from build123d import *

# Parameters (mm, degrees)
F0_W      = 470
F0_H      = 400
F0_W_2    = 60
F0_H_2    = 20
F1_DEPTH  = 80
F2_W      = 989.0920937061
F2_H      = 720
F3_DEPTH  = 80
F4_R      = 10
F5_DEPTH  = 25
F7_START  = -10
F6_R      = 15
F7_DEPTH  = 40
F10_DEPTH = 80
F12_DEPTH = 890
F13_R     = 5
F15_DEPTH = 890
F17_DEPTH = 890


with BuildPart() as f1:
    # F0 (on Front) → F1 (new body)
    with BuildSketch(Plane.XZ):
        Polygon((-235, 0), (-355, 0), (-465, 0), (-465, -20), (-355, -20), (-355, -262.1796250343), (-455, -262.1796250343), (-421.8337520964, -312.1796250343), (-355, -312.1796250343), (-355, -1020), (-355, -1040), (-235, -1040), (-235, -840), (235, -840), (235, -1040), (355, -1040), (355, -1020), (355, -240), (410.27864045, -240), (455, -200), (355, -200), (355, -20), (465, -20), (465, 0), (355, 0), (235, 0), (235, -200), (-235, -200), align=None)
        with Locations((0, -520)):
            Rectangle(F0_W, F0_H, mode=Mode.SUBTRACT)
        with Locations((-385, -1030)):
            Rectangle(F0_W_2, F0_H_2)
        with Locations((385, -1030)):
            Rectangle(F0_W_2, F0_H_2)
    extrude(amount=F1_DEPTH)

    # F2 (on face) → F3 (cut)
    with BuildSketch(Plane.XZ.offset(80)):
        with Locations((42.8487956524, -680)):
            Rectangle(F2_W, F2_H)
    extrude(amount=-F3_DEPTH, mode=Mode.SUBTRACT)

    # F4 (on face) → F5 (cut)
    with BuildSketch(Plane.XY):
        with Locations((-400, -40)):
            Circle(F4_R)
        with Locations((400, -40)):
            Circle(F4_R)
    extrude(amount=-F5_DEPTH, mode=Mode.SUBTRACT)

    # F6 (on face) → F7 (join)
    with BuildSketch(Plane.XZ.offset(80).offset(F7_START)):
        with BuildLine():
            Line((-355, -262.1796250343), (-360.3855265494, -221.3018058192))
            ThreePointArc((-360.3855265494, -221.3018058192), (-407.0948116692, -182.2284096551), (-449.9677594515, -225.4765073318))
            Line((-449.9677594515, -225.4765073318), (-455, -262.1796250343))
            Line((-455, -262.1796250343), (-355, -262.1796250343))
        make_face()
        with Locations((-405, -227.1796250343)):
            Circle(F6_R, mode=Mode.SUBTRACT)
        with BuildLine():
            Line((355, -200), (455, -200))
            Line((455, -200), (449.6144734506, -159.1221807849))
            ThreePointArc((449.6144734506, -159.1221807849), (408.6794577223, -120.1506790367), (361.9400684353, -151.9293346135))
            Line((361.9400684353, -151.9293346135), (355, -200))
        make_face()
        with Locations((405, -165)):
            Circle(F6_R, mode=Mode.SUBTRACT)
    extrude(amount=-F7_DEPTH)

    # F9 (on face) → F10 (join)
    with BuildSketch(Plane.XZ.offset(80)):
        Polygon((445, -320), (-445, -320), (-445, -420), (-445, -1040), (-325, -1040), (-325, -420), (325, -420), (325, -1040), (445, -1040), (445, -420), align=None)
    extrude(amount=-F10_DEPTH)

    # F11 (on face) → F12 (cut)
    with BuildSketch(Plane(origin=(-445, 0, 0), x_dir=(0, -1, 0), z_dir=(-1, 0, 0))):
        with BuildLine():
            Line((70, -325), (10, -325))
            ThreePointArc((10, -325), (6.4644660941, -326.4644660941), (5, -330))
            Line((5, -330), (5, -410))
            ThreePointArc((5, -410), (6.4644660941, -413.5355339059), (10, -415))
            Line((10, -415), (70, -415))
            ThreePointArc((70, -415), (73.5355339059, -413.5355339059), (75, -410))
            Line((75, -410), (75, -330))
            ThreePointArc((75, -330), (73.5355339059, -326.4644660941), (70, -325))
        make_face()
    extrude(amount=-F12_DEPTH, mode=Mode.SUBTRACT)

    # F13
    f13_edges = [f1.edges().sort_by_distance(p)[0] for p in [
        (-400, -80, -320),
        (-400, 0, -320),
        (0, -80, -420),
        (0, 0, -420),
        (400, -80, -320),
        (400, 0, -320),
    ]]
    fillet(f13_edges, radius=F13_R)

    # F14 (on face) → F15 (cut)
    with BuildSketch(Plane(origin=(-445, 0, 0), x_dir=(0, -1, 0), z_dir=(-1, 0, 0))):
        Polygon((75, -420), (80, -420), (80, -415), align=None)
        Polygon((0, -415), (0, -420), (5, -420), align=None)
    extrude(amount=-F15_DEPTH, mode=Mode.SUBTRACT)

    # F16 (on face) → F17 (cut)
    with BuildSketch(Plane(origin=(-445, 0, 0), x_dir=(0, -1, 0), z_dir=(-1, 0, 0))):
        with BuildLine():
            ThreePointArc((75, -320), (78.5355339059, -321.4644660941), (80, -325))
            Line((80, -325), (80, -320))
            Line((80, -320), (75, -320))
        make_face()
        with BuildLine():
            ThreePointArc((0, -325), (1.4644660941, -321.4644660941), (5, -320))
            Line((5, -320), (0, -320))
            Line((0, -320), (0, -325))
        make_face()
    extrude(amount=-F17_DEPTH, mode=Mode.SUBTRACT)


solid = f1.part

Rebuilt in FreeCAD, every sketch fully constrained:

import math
import FreeCAD as App
import Part
import Sketcher

V = App.Vector
Q = App.Units.Quantity


def edges_at(feature, points):
    """Names of the edges that pass closest to the given points."""
    edges = feature.Shape.Edges
    near = lambda p: min(range(len(edges)), key=lambda i: edges[i].distToShape(Part.Vertex(*p))[0])
    return sorted({f"Edge{near(p) + 1}" for p in points})


def add_polygon(sketch, points):
    """Adds a closed chain of lines whose ends are joined by coincident constraints."""
    first, n = sketch.GeometryCount, len(points)
    for a, b in zip(points, points[1:] + points[:1]):
        sketch.addGeometry(Part.LineSegment(App.Vector(*a, 0), App.Vector(*b, 0)), False)
    for i in range(n):
        sketch.addConstraint(Sketcher.Constraint("Coincident", first + i, 2, first + (i + 1) % n, 1))

doc = App.newDocument("Part")
body = doc.addObject("PartDesign::Body", "Body")

sketch1 = body.newObject("Sketcher::SketchObject", "Sketch")
sketch1.AttachmentSupport = (doc.getObject("XZ_Plane"), [""])
sketch1.MapMode = "FlatFace"
add_polygon(sketch1, [(-235, 0), (-465, 0), (-465, -20), (-355, -20), (-355, -262.179625), (-455, -262.179625), (-421.833752, -312.179625), (-355, -312.179625), (-355, -1020), (-415, -1020), (-415, -1040), (-235, -1040), (-235, -840), (235, -840), (235, -1040), (415, -1040), (415, -1020), (355, -1020), (355, -240), (410.27864, -240), (455, -200), (355, -200), (355, -20), (465, -20), (465, 0), (235, 0), (235, -200), (-235, -200)])
add_polygon(sketch1, [(235, -720), (-235, -720), (-235, -320), (235, -320)])
sketch1.addConstraint(Sketcher.Constraint("Horizontal", 0))
sketch1.addConstraint(Sketcher.Constraint("Vertical", 1))
sketch1.addConstraint(Sketcher.Constraint("Horizontal", 2))
sketch1.addConstraint(Sketcher.Constraint("Vertical", 3))
sketch1.addConstraint(Sketcher.Constraint("Horizontal", 4))
sketch1.addConstraint(Sketcher.Constraint("Horizontal", 6))
sketch1.addConstraint(Sketcher.Constraint("Vertical", 7))
sketch1.addConstraint(Sketcher.Constraint("Horizontal", 8))
sketch1.addConstraint(Sketcher.Constraint("Vertical", 9))
sketch1.addConstraint(Sketcher.Constraint("Horizontal", 10))
sketch1.addConstraint(Sketcher.Constraint("Vertical", 11))
sketch1.addConstraint(Sketcher.Constraint("Horizontal", 12))
sketch1.addConstraint(Sketcher.Constraint("Vertical", 13))
sketch1.addConstraint(Sketcher.Constraint("Horizontal", 14))
sketch1.addConstraint(Sketcher.Constraint("Vertical", 15))
sketch1.addConstraint(Sketcher.Constraint("Horizontal", 16))
sketch1.addConstraint(Sketcher.Constraint("Vertical", 17))
sketch1.addConstraint(Sketcher.Constraint("Horizontal", 18))
sketch1.addConstraint(Sketcher.Constraint("Horizontal", 20))
sketch1.addConstraint(Sketcher.Constraint("Vertical", 21))
sketch1.addConstraint(Sketcher.Constraint("Horizontal", 22))
sketch1.addConstraint(Sketcher.Constraint("Vertical", 23))
sketch1.addConstraint(Sketcher.Constraint("Horizontal", 24))
sketch1.addConstraint(Sketcher.Constraint("Vertical", 25))
sketch1.addConstraint(Sketcher.Constraint("Horizontal", 26))
sketch1.addConstraint(Sketcher.Constraint("Vertical", 27))
sketch1.addConstraint(Sketcher.Constraint("Horizontal", 28))
sketch1.addConstraint(Sketcher.Constraint("Vertical", 29))
sketch1.addConstraint(Sketcher.Constraint("Horizontal", 30))
sketch1.addConstraint(Sketcher.Constraint("Vertical", 31))
sketch1.addConstraint(Sketcher.Constraint("Symmetric", 0, 2, 23, 2, -1, 1))
sketch1.addConstraint(Sketcher.Constraint("Symmetric", 10, 2, 13, 2, -2))
sketch1.addConstraint(Sketcher.Constraint("Symmetric", 8, 2, 15, 2, -2))
sketch1.addConstraint(Sketcher.Constraint("Symmetric", 2, 2, 21, 2, -2))
sketch1.addConstraint(Sketcher.Constraint("Symmetric", 24, 2, 27, 2, -2))
sketch1.addConstraint(Sketcher.Constraint("Horizontal", 20, 2, 25, 2))
sketch1.addConstraint(Sketcher.Constraint("Vertical", 3, 2, 6, 2))
sketch1.addConstraint(Sketcher.Constraint("Vertical", 17, 2, 20, 2))
sketch1.addConstraint(Sketcher.Constraint("Vertical", 13, 2, 24, 2))
sketch1.addConstraint(Sketcher.Constraint("Vertical", 27, 2, 28, 2))
sketch1.addConstraint(Sketcher.Constraint("Vertical", 25, 2, 30, 2))
sketch1.addConstraint(Sketcher.Constraint("Equal", 4, 20))
sketch1.addConstraint(Sketcher.Constraint("Equal", 1, 9))
sketch1.addConstraint(Sketcher.Constraint("Equal", 14, 21))
sketch1.addConstraint(Sketcher.Constraint("Equal", 13, 25))
sketch1.addConstraint(Sketcher.Constraint("Equal", 5, 19))
sketch1.addConstraint(Sketcher.Constraint("DistanceX", 0, 2, 0, 1, Q("230 mm")))
sketch1.addConstraint(Sketcher.Constraint("DistanceX", 2, 1, 2, 2, Q("110 mm")))
sketch1.addConstraint(Sketcher.Constraint("DistanceX", 4, 2, 4, 1, Q("100 mm")))
sketch1.addConstraint(Sketcher.Constraint("DistanceX", 8, 2, 8, 1, Q("60 mm")))
sketch1.addConstraint(Sketcher.Constraint("DistanceX", 12, 1, 12, 2, Q("470 mm")))
sketch1.addConstraint(Sketcher.Constraint("DistanceY", 1, 2, 1, 1, Q("20 mm")))
sketch1.addConstraint(Sketcher.Constraint("DistanceY", 17, 1, 17, 2, Q("780 mm")))
sketch1.addConstraint(Sketcher.Constraint("DistanceY", 29, 1, 29, 2, Q("400 mm")))
sketch1.addConstraint(Sketcher.Constraint("Distance", 5, Q("60 mm")))
sketch1.addConstraint(Sketcher.Constraint("DistanceY", 7, 2, -1, 1, Q("1020 mm")))
sketch1.addConstraint(Sketcher.Constraint("DistanceY", 28, 2, -1, 1, Q("720 mm")))
sketch1.addConstraint(Sketcher.Constraint("DistanceY", 5, 2, 4, 2, Q("50 mm")))
sketch1.addConstraint(Sketcher.Constraint("DistanceY", 3, 2, 3, 1, Q("242.179625 mm")))
pad1 = body.newObject("PartDesign::Pad", "Pad")
pad1.Profile = sketch1
pad1.Length = 80

sketch2 = body.newObject("Sketcher::SketchObject", "Sketch001")
sketch2.AttachmentSupport = (doc.getObject("XZ_Plane"), [""])
sketch2.MapMode = "FlatFace"
sketch2.AttachmentOffset = App.Placement(V(0, 0, 80), App.Rotation())
add_polygon(sketch2, [(-451.697251, -320), (-451.697251, -1040), (537.394843, -1040), (537.394843, -320)])
sketch2.addConstraint(Sketcher.Constraint("Vertical", 0))
sketch2.addConstraint(Sketcher.Constraint("Horizontal", 1))
sketch2.addConstraint(Sketcher.Constraint("Vertical", 2))
sketch2.addConstraint(Sketcher.Constraint("Horizontal", 3))
sketch2.addConstraint(Sketcher.Constraint("DistanceY", 0, 2, 0, 1, Q("720 mm")))
sketch2.addConstraint(Sketcher.Constraint("DistanceY", 0, 2, -1, 1, Q("1040 mm")))
sketch2.addConstraint(Sketcher.Constraint("DistanceX", 1, 1, 1, 2, Q("989.092094 mm")))
sketch2.addConstraint(Sketcher.Constraint("DistanceX", 0, 2, -1, 1, Q("451.697251 mm")))
pocket1 = body.newObject("PartDesign::Pocket", "Pocket")
pocket1.Profile = sketch2
pocket1.Length = 80

sketch3 = body.newObject("Sketcher::SketchObject", "Sketch002")
sketch3.AttachmentSupport = (doc.getObject("XY_Plane"), [""])
sketch3.MapMode = "FlatFace"
sketch3.addGeometry(Part.Circle(V(-400, -40, 0), V(0, 0, 1), 10), False)
sketch3.addGeometry(Part.Circle(V(400, -40, 0), V(0, 0, 1), 10), False)
sketch3.addConstraint(Sketcher.Constraint("Equal", 0, 1))
sketch3.addConstraint(Sketcher.Constraint("Symmetric", 0, 3, 1, 3, -2))
sketch3.addConstraint(Sketcher.Constraint("Diameter", 0, Q("20 mm")))
sketch3.addConstraint(Sketcher.Constraint("DistanceX", 0, 3, -1, 1, Q("400 mm")))
sketch3.addConstraint(Sketcher.Constraint("DistanceY", 0, 3, -1, 1, Q("40 mm")))
pocket2 = body.newObject("PartDesign::Pocket", "Pocket001")
pocket2.Profile = sketch3
pocket2.Length = 25

sketch4 = body.newObject("Sketcher::SketchObject", "Sketch003")
sketch4.AttachmentSupport = (doc.getObject("XZ_Plane"), [""])
sketch4.MapMode = "FlatFace"
sketch4.AttachmentOffset = App.Placement(V(0, 0, 70), App.Rotation())
sketch4.addGeometry(Part.LineSegment(V(-355, -262.179625, 0), V(-360.385527, -221.301806, 0)), False)
sketch4.addGeometry(Part.ArcOfCircle(Part.Circle(V(-405, -227.179625, 0), V(0, 0, 1), 45), math.radians(7.505317), math.radians(177.831005)), False)
sketch4.addGeometry(Part.LineSegment(V(-449.967759, -225.476507, 0), V(-455, -262.179625, 0)), False)
sketch4.addGeometry(Part.LineSegment(V(-455, -262.179625, 0), V(-355, -262.179625, 0)), False)
sketch4.addGeometry(Part.Circle(V(-405, -227.179625, 0), V(0, 0, 1), 15), False)
sketch4.addGeometry(Part.LineSegment(V(355, -200, 0), V(455, -200, 0)), False)
sketch4.addGeometry(Part.LineSegment(V(455, -200, 0), V(449.614473, -159.122181, 0)), False)
sketch4.addGeometry(Part.ArcOfCircle(Part.Circle(V(405, -165, 0), V(0, 0, 1), 45), math.radians(7.505317), math.radians(163.114549)), False)
sketch4.addGeometry(Part.LineSegment(V(361.940068, -151.929335, 0), V(355, -200, 0)), False)
sketch4.addGeometry(Part.Circle(V(405, -165, 0), V(0, 0, 1), 15), False)
sketch4.addConstraint(Sketcher.Constraint("Tangent", 0, 2, 1, 1))
sketch4.addConstraint(Sketcher.Constraint("Coincident", 1, 2, 2, 1))
sketch4.addConstraint(Sketcher.Constraint("Coincident", 2, 2, 3, 1))
sketch4.addConstraint(Sketcher.Constraint("Coincident", 3, 2, 0, 1))
sketch4.addConstraint(Sketcher.Constraint("Coincident", 5, 2, 6, 1))
sketch4.addConstraint(Sketcher.Constraint("Tangent", 6, 2, 7, 1))
sketch4.addConstraint(Sketcher.Constraint("Coincident", 7, 2, 8, 1))
sketch4.addConstraint(Sketcher.Constraint("Coincident", 8, 2, 5, 1))
sketch4.addConstraint(Sketcher.Constraint("Horizontal", 3))
sketch4.addConstraint(Sketcher.Constraint("Horizontal", 5))
sketch4.addConstraint(Sketcher.Constraint("Coincident", 4, 3, 1, 3))
sketch4.addConstraint(Sketcher.Constraint("Coincident", 9, 3, 7, 3))
sketch4.addConstraint(Sketcher.Constraint("Equal", 1, 7))
sketch4.addConstraint(Sketcher.Constraint("Equal", 4, 9))
sketch4.addConstraint(Sketcher.Constraint("Parallel", 0, 6))
sketch4.addConstraint(Sketcher.Constraint("Equal", 3, 5))
sketch4.addConstraint(Sketcher.Constraint("Equal", 0, 6))
sketch4.addConstraint(Sketcher.Constraint("Diameter", 4, Q("30 mm")))
sketch4.addConstraint(Sketcher.Constraint("Radius", 1, Q("45 mm")))
sketch4.addConstraint(Sketcher.Constraint("DistanceX", 3, 1, 3, 2, Q("100 mm")))
sketch4.addConstraint(Sketcher.Constraint("DistanceX", 1, 3, -1, 1, Q("405 mm")))
sketch4.addConstraint(Sketcher.Constraint("DistanceX", -1, 1, 7, 3, Q("405 mm")))
sketch4.addConstraint(Sketcher.Constraint("DistanceY", 7, 3, -1, 1, Q("165 mm")))
sketch4.addConstraint(Sketcher.Constraint("DistanceX", 2, 2, -1, 1, Q("455 mm")))
sketch4.addConstraint(Sketcher.Constraint("DistanceY", 5, 2, -1, 1, Q("200 mm")))
sketch4.addConstraint(Sketcher.Constraint("DistanceY", 1, 2, 0, 2, Q("4.174702 mm")))
sketch4.addConstraint(Sketcher.Constraint("Distance", 8, Q("48.569058 mm")))
sketch4.addConstraint(Sketcher.Constraint("DistanceY", 3, 2, 7, 2, Q("110.25029 mm")))
pad2 = body.newObject("PartDesign::Pad", "Pad001")
pad2.Profile = sketch4
pad2.Length = 40
pad2.Reversed = True

sketch5 = body.newObject("Sketcher::SketchObject", "Sketch004")
sketch5.AttachmentSupport = (doc.getObject("XZ_Plane"), [""])
sketch5.MapMode = "FlatFace"
sketch5.AttachmentOffset = App.Placement(V(0, 0, 80), App.Rotation())
add_polygon(sketch5, [(445, -320), (-445, -320), (-445, -1040), (-325, -1040), (-325, -420), (325, -420), (325, -1040), (445, -1040)])
sketch5.addConstraint(Sketcher.Constraint("Horizontal", 0))
sketch5.addConstraint(Sketcher.Constraint("Vertical", 1))
sketch5.addConstraint(Sketcher.Constraint("Horizontal", 2))
sketch5.addConstraint(Sketcher.Constraint("Vertical", 3))
sketch5.addConstraint(Sketcher.Constraint("Horizontal", 4))
sketch5.addConstraint(Sketcher.Constraint("Vertical", 5))
sketch5.addConstraint(Sketcher.Constraint("Horizontal", 6))
sketch5.addConstraint(Sketcher.Constraint("Vertical", 7))
sketch5.addConstraint(Sketcher.Constraint("Symmetric", 2, 2, 5, 2, -2))
sketch5.addConstraint(Sketcher.Constraint("Equal", 2, 6))
sketch5.addConstraint(Sketcher.Constraint("DistanceX", 0, 2, 0, 1, Q("890 mm")))
sketch5.addConstraint(Sketcher.Constraint("DistanceX", 2, 1, 2, 2, Q("120 mm")))
sketch5.addConstraint(Sketcher.Constraint("DistanceY", 1, 2, 1, 1, Q("720 mm")))
sketch5.addConstraint(Sketcher.Constraint("DistanceY", 3, 1, 3, 2, Q("620 mm")))
sketch5.addConstraint(Sketcher.Constraint("DistanceY", 0, 2, -1, 1, Q("320 mm")))
pad3 = body.newObject("PartDesign::Pad", "Pad002")
pad3.Profile = sketch5
pad3.Length = 80
pad3.Reversed = True

sketch6 = body.newObject("Sketcher::SketchObject", "Sketch005")
sketch6.AttachmentSupport = (doc.getObject("YZ_Plane"), [""])
sketch6.MapMode = "FlatFace"
sketch6.AttachmentOffset = App.Placement(V(0, 0, -445), App.Rotation())
sketch6.addGeometry(Part.LineSegment(V(-70, -325, 0), V(-10, -325, 0)), False)
sketch6.addGeometry(Part.ArcOfCircle(Part.Circle(V(-10, -330, 0), V(0, 0, 1), 5), math.radians(0), math.radians(90)), False)
sketch6.addGeometry(Part.LineSegment(V(-5, -330, 0), V(-5, -410, 0)), False)
sketch6.addGeometry(Part.ArcOfCircle(Part.Circle(V(-10, -410, 0), V(0, 0, 1), 5), math.radians(-90), math.radians(0)), False)
sketch6.addGeometry(Part.LineSegment(V(-10, -415, 0), V(-70, -415, 0)), False)
sketch6.addGeometry(Part.ArcOfCircle(Part.Circle(V(-70, -410, 0), V(0, 0, 1), 5), math.radians(180), math.radians(270)), False)
sketch6.addGeometry(Part.LineSegment(V(-75, -410, 0), V(-75, -330, 0)), False)
sketch6.addGeometry(Part.ArcOfCircle(Part.Circle(V(-70, -330, 0), V(0, 0, 1), 5), math.radians(90), math.radians(180)), False)
sketch6.addConstraint(Sketcher.Constraint("Tangent", 0, 2, 1, 2))
sketch6.addConstraint(Sketcher.Constraint("Tangent", 1, 1, 2, 1))
sketch6.addConstraint(Sketcher.Constraint("Tangent", 2, 2, 3, 2))
sketch6.addConstraint(Sketcher.Constraint("Tangent", 3, 1, 4, 1))
sketch6.addConstraint(Sketcher.Constraint("Tangent", 4, 2, 5, 2))
sketch6.addConstraint(Sketcher.Constraint("Tangent", 5, 1, 6, 1))
sketch6.addConstraint(Sketcher.Constraint("Tangent", 6, 2, 7, 2))
sketch6.addConstraint(Sketcher.Constraint("Tangent", 7, 1, 0, 1))
sketch6.addConstraint(Sketcher.Constraint("Horizontal", 0))
sketch6.addConstraint(Sketcher.Constraint("Vertical", 2))
sketch6.addConstraint(Sketcher.Constraint("Horizontal", 4))
sketch6.addConstraint(Sketcher.Constraint("Vertical", 6))
sketch6.addConstraint(Sketcher.Constraint("Equal", 1, 3))
sketch6.addConstraint(Sketcher.Constraint("Equal", 3, 5))
sketch6.addConstraint(Sketcher.Constraint("Equal", 5, 7))
sketch6.addConstraint(Sketcher.Constraint("Radius", 1, Q("5 mm")))
sketch6.addConstraint(Sketcher.Constraint("DistanceX", 0, 1, 0, 2, Q("60 mm")))
sketch6.addConstraint(Sketcher.Constraint("DistanceY", 2, 2, 2, 1, Q("80 mm")))
sketch6.addConstraint(Sketcher.Constraint("DistanceX", 1, 3, -1, 1, Q("10 mm")))
sketch6.addConstraint(Sketcher.Constraint("DistanceY", 1, 3, -1, 1, Q("330 mm")))
pocket3 = body.newObject("PartDesign::Pocket", "Pocket002")
pocket3.Profile = sketch6
pocket3.Length = 890
pocket3.Reversed = True
doc.recompute()

fillet = body.newObject("PartDesign::Fillet", "Fillet")
fillet.Base = (pocket3, edges_at(pocket3, [
    (-400, -80, -320),
    (-400, 0, -320),
    (0, -80, -420),
    (0, 0, -420),
    (400, -80, -320),
    (400, 0, -320),
]))
fillet.Radius = 5

sketch7 = body.newObject("Sketcher::SketchObject", "Sketch006")
sketch7.AttachmentSupport = (doc.getObject("YZ_Plane"), [""])
sketch7.MapMode = "FlatFace"
sketch7.AttachmentOffset = App.Placement(V(0, 0, -445), App.Rotation())
add_polygon(sketch7, [(-75, -420), (-80, -420), (-80, -415)])
add_polygon(sketch7, [(0, -415), (0, -420), (-5, -420)])
sketch7.addConstraint(Sketcher.Constraint("Horizontal", 0))
sketch7.addConstraint(Sketcher.Constraint("Vertical", 1))
sketch7.addConstraint(Sketcher.Constraint("Vertical", 3))
sketch7.addConstraint(Sketcher.Constraint("Horizontal", 4))
sketch7.addConstraint(Sketcher.Constraint("PointOnObject", 3, 2, -2))
sketch7.addConstraint(Sketcher.Constraint("Perpendicular", 2, 5))
sketch7.addConstraint(Sketcher.Constraint("Horizontal", 2, 2, 3, 2))
sketch7.addConstraint(Sketcher.Constraint("Horizontal", 1, 2, 5, 2))
sketch7.addConstraint(Sketcher.Constraint("Equal", 0, 4))
sketch7.addConstraint(Sketcher.Constraint("DistanceX", 0, 2, 0, 1, Q("5 mm")))
sketch7.addConstraint(Sketcher.Constraint("DistanceX", 0, 2, -1, 1, Q("80 mm")))
sketch7.addConstraint(Sketcher.Constraint("DistanceY", 0, 2, -1, 1, Q("420 mm")))
pocket4 = body.newObject("PartDesign::Pocket", "Pocket003")
pocket4.Profile = sketch7
pocket4.Length = 890
pocket4.Reversed = True

sketch8 = body.newObject("Sketcher::SketchObject", "Sketch007")
sketch8.AttachmentSupport = (doc.getObject("YZ_Plane"), [""])
sketch8.MapMode = "FlatFace"
sketch8.AttachmentOffset = App.Placement(V(0, 0, -445), App.Rotation())
sketch8.addGeometry(Part.ArcOfCircle(Part.Circle(V(-75, -325, 0), V(0, 0, 1), 5), math.radians(90), math.radians(180)), False)
sketch8.addGeometry(Part.LineSegment(V(-80, -325, 0), V(-80, -320, 0)), False)
sketch8.addGeometry(Part.LineSegment(V(-80, -320, 0), V(-75, -320, 0)), False)
sketch8.addGeometry(Part.ArcOfCircle(Part.Circle(V(-5, -325, 0), V(0, 0, 1), 5), math.radians(0), math.radians(90)), False)
sketch8.addGeometry(Part.LineSegment(V(-5, -320, 0), V(0, -320, 0)), False)
sketch8.addGeometry(Part.LineSegment(V(0, -320, 0), V(0, -325, 0)), False)
sketch8.addConstraint(Sketcher.Constraint("Tangent", 0, 2, 1, 1))
sketch8.addConstraint(Sketcher.Constraint("Coincident", 1, 2, 2, 1))
sketch8.addConstraint(Sketcher.Constraint("Tangent", 2, 2, 0, 1))
sketch8.addConstraint(Sketcher.Constraint("Tangent", 3, 2, 4, 1))
sketch8.addConstraint(Sketcher.Constraint("Coincident", 4, 2, 5, 1))
sketch8.addConstraint(Sketcher.Constraint("Tangent", 5, 2, 3, 1))
sketch8.addConstraint(Sketcher.Constraint("Vertical", 1))
sketch8.addConstraint(Sketcher.Constraint("Horizontal", 2))
sketch8.addConstraint(Sketcher.Constraint("Horizontal", 4))
sketch8.addConstraint(Sketcher.Constraint("Vertical", 5))
sketch8.addConstraint(Sketcher.Constraint("Equal", 0, 3))
sketch8.addConstraint(Sketcher.Constraint("PointOnObject", 4, 2, -2))
sketch8.addConstraint(Sketcher.Constraint("Horizontal", 0, 3, 3, 3))
sketch8.addConstraint(Sketcher.Constraint("Radius", 0, Q("5 mm")))
sketch8.addConstraint(Sketcher.Constraint("DistanceX", 0, 3, -1, 1, Q("75 mm")))
sketch8.addConstraint(Sketcher.Constraint("DistanceY", 0, 3, -1, 1, Q("325 mm")))
pocket5 = body.newObject("PartDesign::Pocket", "Pocket004")
pocket5.Profile = sketch8
pocket5.Length = 890
pocket5.Reversed = True

doc.recompute()
